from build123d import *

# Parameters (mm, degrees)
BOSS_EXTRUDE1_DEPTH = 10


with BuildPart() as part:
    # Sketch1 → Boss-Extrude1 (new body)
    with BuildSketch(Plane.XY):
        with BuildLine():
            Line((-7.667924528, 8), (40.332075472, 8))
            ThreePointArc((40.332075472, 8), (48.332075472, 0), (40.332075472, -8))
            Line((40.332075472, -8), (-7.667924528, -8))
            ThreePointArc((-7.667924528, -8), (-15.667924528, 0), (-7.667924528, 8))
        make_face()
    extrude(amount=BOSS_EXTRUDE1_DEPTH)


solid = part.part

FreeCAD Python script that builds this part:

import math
import FreeCAD as App
import Part
import Sketcher

V = App.Vector
Q = App.Units.Quantity

doc = App.newDocument("Part")
body = doc.addObject("PartDesign::Body", "Body")

# Sketch on XY plane
sketch1 = body.newObject("Sketcher::SketchObject", "Sketch")
sketch1.AttachmentSupport = (doc.getObject("XY_Plane"), [""])
sketch1.MapMode = "FlatFace"
sketch1.addGeometry(Part.LineSegment(V(40, 8, 0), V(-8, 8, 0)), False)
sketch1.addGeometry(Part.ArcOfCircle(Part.Circle(V(-8, 0, 0), V(0, 0, 1), 8), math.radians(90), math.radians(270)), False)
sketch1.addGeometry(Part.LineSegment(V(-8, -8, 0), V(40, -8, 0)), False)
sketch1.addGeometry(Part.ArcOfCircle(Part.Circle(V(40, 0, 0), V(0, 0, 1), 8), math.radians(-90), math.radians(90)), False)
sketch1.addConstraint(Sketcher.Constraint("Tangent", 0, 2, 1, 1))
sketch1.addConstraint(Sketcher.Constraint("Tangent", 1, 2, 2, 1))
sketch1.addConstraint(Sketcher.Constraint("Tangent", 2, 2, 3, 1))
sketch1.addConstraint(Sketcher.Constraint("Tangent", 3, 2, 0, 1))
sketch1.addConstraint(Sketcher.Constraint("Horizontal", 0))
sketch1.addConstraint(Sketcher.Constraint("Horizontal", 2))
sketch1.addConstraint(Sketcher.Constraint("PointOnObject", 1, 3, -1))
sketch1.addConstraint(Sketcher.Constraint("Radius", 1, Q("8 mm")))
sketch1.addConstraint(Sketcher.Constraint("DistanceX", 0, 2, 0, 1, Q("48 mm")))
sketch1.addConstraint(Sketcher.Constraint("DistanceX", 1, 3, -1, 1, Q("7.667925 mm")))
pad1 = body.newObject("PartDesign::Pad", "Pad")
pad1.Profile = sketch1
pad1.Length = 10

doc.recompute()
